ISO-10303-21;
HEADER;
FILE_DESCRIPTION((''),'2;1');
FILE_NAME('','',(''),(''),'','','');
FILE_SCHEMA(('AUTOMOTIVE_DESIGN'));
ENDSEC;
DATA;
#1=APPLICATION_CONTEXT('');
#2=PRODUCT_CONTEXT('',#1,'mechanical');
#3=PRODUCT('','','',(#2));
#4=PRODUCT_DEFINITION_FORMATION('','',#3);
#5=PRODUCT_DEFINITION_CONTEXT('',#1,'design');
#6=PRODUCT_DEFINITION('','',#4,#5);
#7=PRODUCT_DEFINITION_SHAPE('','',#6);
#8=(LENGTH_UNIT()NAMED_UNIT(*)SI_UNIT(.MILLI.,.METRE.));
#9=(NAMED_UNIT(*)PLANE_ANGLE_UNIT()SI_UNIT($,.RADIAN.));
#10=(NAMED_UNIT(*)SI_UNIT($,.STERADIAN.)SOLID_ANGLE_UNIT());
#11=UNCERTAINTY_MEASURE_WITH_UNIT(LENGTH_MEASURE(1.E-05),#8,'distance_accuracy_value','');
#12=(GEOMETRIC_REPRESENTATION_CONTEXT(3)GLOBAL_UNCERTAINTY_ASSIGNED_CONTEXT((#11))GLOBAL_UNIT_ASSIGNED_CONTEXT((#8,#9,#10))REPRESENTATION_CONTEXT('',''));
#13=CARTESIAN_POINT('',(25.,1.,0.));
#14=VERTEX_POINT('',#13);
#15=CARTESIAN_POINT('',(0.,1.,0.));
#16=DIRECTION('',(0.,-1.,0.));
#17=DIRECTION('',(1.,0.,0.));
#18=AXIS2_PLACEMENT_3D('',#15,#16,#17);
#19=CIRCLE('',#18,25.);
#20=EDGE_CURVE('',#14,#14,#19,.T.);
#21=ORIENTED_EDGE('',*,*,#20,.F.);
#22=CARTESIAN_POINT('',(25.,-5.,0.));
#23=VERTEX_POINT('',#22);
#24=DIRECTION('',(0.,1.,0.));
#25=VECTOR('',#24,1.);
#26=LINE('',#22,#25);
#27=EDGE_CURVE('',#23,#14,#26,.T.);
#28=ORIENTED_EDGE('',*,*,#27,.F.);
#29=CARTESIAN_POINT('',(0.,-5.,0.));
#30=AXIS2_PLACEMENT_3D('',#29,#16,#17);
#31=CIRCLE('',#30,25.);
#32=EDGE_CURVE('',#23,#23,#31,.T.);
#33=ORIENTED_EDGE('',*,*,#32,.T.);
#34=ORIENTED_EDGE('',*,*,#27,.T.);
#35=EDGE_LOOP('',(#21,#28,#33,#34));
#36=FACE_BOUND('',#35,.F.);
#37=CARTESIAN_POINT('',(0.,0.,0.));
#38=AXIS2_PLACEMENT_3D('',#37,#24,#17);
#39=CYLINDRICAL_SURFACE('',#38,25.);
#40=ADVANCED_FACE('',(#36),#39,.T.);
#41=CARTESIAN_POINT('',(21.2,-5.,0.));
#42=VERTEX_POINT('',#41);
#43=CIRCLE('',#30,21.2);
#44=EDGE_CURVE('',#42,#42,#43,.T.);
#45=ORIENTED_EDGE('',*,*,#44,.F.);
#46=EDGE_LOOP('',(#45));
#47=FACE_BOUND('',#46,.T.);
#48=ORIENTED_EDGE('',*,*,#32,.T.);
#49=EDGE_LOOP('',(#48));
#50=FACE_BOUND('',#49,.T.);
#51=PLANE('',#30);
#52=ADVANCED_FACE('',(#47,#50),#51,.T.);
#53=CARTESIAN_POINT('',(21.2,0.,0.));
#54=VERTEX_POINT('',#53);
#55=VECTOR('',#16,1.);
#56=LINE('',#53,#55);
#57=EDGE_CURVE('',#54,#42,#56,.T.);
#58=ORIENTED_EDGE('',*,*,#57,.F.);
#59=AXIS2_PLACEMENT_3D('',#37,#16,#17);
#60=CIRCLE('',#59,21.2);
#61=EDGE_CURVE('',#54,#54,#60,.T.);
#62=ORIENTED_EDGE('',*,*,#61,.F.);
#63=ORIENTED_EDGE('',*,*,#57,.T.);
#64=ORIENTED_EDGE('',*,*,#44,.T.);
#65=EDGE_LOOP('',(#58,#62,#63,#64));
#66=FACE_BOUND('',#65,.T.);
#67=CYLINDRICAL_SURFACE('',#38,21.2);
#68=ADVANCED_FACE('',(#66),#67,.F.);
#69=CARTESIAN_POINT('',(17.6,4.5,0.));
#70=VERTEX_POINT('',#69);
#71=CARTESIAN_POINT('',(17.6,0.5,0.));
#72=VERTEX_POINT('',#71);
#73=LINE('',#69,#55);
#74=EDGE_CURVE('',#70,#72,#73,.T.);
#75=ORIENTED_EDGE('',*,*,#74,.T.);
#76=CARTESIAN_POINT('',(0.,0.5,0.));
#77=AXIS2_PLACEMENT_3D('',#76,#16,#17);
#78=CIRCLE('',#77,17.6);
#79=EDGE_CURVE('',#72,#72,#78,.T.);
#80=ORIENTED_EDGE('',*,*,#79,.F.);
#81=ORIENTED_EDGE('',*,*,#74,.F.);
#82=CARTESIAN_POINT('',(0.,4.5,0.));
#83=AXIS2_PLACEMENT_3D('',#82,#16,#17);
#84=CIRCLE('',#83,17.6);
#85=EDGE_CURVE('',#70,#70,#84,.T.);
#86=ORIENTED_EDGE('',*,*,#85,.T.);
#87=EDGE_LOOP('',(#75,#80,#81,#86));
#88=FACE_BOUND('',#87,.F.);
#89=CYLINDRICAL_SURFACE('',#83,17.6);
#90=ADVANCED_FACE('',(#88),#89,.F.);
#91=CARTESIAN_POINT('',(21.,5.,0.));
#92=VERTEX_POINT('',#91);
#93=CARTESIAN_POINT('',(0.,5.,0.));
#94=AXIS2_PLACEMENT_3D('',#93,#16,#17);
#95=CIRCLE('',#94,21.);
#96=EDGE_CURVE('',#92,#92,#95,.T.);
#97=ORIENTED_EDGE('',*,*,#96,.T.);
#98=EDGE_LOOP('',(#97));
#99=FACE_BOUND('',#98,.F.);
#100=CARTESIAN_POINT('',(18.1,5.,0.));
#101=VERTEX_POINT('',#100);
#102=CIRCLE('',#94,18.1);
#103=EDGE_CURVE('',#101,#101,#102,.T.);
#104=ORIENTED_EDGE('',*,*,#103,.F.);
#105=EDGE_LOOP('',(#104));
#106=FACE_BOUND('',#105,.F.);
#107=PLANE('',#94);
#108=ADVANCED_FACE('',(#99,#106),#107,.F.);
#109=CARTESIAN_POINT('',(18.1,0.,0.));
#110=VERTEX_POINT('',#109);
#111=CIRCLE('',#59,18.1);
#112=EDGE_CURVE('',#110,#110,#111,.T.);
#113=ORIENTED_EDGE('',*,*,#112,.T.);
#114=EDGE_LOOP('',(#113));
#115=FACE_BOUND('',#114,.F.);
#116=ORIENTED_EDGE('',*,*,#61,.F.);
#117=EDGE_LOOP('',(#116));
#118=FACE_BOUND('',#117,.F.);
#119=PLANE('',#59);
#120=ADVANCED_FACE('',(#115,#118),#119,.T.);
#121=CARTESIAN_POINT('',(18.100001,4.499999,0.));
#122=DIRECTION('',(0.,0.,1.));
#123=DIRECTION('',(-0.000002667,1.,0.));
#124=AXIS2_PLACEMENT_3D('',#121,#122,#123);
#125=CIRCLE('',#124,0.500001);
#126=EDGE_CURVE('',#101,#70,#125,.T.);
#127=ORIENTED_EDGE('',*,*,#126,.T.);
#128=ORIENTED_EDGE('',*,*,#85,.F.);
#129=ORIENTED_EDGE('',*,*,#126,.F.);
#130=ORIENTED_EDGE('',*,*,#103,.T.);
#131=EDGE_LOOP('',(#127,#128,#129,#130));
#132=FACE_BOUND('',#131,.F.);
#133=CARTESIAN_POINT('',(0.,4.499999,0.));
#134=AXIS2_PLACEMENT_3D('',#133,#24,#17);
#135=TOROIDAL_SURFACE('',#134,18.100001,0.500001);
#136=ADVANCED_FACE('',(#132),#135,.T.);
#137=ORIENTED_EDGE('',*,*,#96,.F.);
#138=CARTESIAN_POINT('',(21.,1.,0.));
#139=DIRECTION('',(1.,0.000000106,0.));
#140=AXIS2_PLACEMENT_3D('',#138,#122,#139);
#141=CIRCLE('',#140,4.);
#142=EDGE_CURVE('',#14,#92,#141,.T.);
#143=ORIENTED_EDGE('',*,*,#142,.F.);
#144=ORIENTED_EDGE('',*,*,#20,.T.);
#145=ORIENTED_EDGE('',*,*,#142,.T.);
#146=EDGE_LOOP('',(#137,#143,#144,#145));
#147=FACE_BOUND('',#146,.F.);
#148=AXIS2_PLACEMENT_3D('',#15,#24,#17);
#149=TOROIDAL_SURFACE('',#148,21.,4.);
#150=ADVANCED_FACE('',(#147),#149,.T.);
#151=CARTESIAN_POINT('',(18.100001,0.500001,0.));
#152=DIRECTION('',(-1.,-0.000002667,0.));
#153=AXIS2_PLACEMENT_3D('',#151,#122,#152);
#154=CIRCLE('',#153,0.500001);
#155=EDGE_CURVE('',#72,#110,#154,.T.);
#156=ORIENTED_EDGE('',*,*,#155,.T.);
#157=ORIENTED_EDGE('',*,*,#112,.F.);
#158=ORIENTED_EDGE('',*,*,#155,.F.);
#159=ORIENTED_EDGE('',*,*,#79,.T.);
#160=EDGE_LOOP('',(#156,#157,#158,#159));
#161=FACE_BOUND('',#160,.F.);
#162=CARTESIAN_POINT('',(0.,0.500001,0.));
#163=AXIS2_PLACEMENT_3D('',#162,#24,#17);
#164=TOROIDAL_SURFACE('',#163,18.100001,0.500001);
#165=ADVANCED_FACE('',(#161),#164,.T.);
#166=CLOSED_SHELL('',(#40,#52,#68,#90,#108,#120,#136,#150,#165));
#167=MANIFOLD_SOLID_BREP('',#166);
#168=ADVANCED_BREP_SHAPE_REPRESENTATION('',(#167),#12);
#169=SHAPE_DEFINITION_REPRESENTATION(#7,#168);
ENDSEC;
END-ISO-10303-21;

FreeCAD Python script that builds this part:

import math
import FreeCAD as App
import Part
import Sketcher

V = App.Vector

doc = App.newDocument("Part")
params = doc.addObject("Spreadsheet::Sheet", "Params")
for row, (alias, value) in enumerate([
    ("sketch1_diameter", "50 mm"),
    ("sketch1_diameter2", "42.4 mm"),
    ("pad1_length", "5 mm"),
    ("sketch2_radius", "4 mm"),
    ("sketch2_radius2", "0.500001 mm"),
    ("sketch2_height", "4 mm"),
    ("sketch2_height2", "1 mm"),
    ("sketch2_width", "6.9 mm"),
    ("revolution_angle", "360 deg"),
], start=1):
    params.set(f"A{row}", alias)
    params.set(f"B{row}", "=" + value)
    params.setAlias(f"B{row}", alias)

body = doc.addObject("PartDesign::Body", "Body")

sketch1 = body.newObject("Sketcher::SketchObject", "Sketch")
sketch1.AttachmentSupport = (doc.getObject("XZ_Plane"), [""])
sketch1.MapMode = "FlatFace"
sketch1.addGeometry(Part.Circle(V(0, 0, 0), V(0, 0, 1), 25), False)
sketch1.addGeometry(Part.Circle(V(0, 0, 0), V(0, 0, 1), 21.2), False)
sketch1.addConstraint(Sketcher.Constraint("Coincident", 0, 3, -1, 1))
sketch1.addConstraint(Sketcher.Constraint("Coincident", 1, 3, -1, 1))
sketch1.addConstraint(Sketcher.Constraint("Diameter", 0, 50.0))
sketch1.addConstraint(Sketcher.Constraint("Diameter", 1, 42.4))
sketch1.setExpression("Constraints[2]", "Params.sketch1_diameter")
sketch1.setExpression("Constraints[3]", "Params.sketch1_diameter2")
pad1 = body.newObject("PartDesign::Pad", "Pad")
pad1.Profile = sketch1
pad1.setExpression("Length", "Params.pad1_length")

sketch2 = body.newObject("Sketcher::SketchObject", "Sketch001")
sketch2.AttachmentSupport = (doc.getObject("XY_Plane"), [""])
sketch2.MapMode = "FlatFace"
sketch2.addGeometry(Part.LineSegment(V(17.6, 4.5, 0), V(17.6, 0.5, 0)), False)
sketch2.addGeometry(Part.ArcOfCircle(Part.Circle(V(18.100001, 0.500001, 0), V(0, 0, 1), 0.500001), math.radians(-179.999847), math.radians(-90.000153)), False)
sketch2.addGeometry(Part.LineSegment(V(18.1, 0, 0), V(25, 0, 0)), False)
sketch2.addGeometry(Part.LineSegment(V(25, 0, 0), V(25, 1, 0)), False)
sketch2.addGeometry(Part.ArcOfCircle(Part.Circle(V(21, 1, 0), V(0, 0, 1), 4), math.radians(0.000006), math.radians(89.999994)), False)
sketch2.addGeometry(Part.LineSegment(V(21, 5, 0), V(18.1, 5, 0)), False)
sketch2.addGeometry(Part.ArcOfCircle(Part.Circle(V(18.100001, 4.499999, 0), V(0, 0, 1), 0.500001), math.radians(90.000153), math.radians(179.999847)), False)
sketch2.addConstraint(Sketcher.Constraint("Coincident", 0, 2, 1, 1))
sketch2.addConstraint(Sketcher.Constraint("Coincident", 1, 2, 2, 1))
sketch2.addConstraint(Sketcher.Constraint("Coincident", 2, 2, 3, 1))
sketch2.addConstraint(Sketcher.Constraint("Tangent", 3, 2, 4, 1))
sketch2.addConstraint(Sketcher.Constraint("Tangent", 4, 2, 5, 1))
sketch2.addConstraint(Sketcher.Constraint("Coincident", 5, 2, 6, 1))
sketch2.addConstraint(Sketcher.Constraint("Coincident", 6, 2, 0, 1))
sketch2.addConstraint(Sketcher.Constraint("Vertical", 0))
sketch2.addConstraint(Sketcher.Constraint("Horizontal", 2))
sketch2.addConstraint(Sketcher.Constraint("Vertical", 3))
sketch2.addConstraint(Sketcher.Constraint("Horizontal", 5))
sketch2.addConstraint(Sketcher.Constraint("Equal", 1, 6))
sketch2.addConstraint(Sketcher.Constraint("PointOnObject", 1, 2, -1))
sketch2.addConstraint(Sketcher.Constraint("Horizontal", 1, 3, 0, 2))
sketch2.addConstraint(Sketcher.Constraint("Vertical", 6, 3, 1, 2))
sketch2.addConstraint(Sketcher.Constraint("Vertical", 1, 2, 5, 2))
sketch2.addConstraint(Sketcher.Constraint("Radius", 4, 4.0))
sketch2.addConstraint(Sketcher.Constraint("Radius", 1, 0.500001))
sketch2.addConstraint(Sketcher.Constraint("DistanceY", 0, 2, 0, 1, 4.0))
sketch2.addConstraint(Sketcher.Constraint("DistanceY", 3, 1, 3, 2, 1.0))
sketch2.addConstraint(Sketcher.Constraint("DistanceX", 2, 1, 2, 2, 6.9))
sketch2.addConstraint(Sketcher.Constraint("DistanceX", -1, 1, 4, 3, 21.0))
sketch2.setExpression("Constraints[16]", "Params.sketch2_radius")
sketch2.setExpression("Constraints[17]", "Params.sketch2_radius2")
sketch2.setExpression("Constraints[18]", "Params.sketch2_height")
sketch2.setExpression("Constraints[19]", "Params.sketch2_height2")
sketch2.setExpression("Constraints[20]", "Params.sketch2_width")
revolution = body.newObject("PartDesign::Revolution", "Revolution")
revolution.Profile = sketch2
revolution.ReferenceAxis = (sketch2, ["V_Axis"])
revolution.setExpression("Angle", "Params.revolution_angle")

doc.recompute()
